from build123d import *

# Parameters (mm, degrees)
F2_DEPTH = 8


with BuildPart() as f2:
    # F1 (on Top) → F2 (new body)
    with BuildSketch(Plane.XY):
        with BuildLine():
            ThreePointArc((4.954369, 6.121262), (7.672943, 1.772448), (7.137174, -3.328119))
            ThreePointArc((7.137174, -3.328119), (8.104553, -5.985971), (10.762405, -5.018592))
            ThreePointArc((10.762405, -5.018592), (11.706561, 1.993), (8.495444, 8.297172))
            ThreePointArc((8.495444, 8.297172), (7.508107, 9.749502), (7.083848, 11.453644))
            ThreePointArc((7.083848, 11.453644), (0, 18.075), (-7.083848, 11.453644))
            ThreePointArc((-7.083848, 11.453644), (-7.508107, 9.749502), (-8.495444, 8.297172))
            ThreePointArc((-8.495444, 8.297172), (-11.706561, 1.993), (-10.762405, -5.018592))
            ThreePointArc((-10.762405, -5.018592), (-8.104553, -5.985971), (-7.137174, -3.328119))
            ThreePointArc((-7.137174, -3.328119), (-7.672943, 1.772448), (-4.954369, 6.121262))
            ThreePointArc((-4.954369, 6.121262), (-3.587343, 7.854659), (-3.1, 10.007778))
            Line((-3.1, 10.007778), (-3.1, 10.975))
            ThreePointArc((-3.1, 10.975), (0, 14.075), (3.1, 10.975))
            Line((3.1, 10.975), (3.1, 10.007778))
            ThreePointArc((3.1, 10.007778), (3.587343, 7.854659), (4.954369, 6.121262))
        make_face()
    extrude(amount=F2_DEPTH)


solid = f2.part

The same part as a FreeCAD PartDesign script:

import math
import FreeCAD as App
import Part
import Sketcher
from FreeCAD import Vector
Q = App.Units.Quantity

doc = App.newDocument("Part")
params = doc.addObject("Spreadsheet::Sheet", "Params")
for row, (alias, value) in enumerate([
    ("sketch1_radius", "2 mm"),
    ("sketch1_radius2", "4.999999 mm"),
    ("sketch1_radius3", "7.1 mm"),
    ("sketch1_radius4", "3.1 mm"),
    ("pad1_length", "8 mm"),
], start=1):
    params.set(f"A{row}", alias)
    params.set(f"B{row}", "=" + value)
    params.setAlias(f"B{row}", alias)

body = doc.addObject("PartDesign::Body", "Body")

# Sketch on XY plane
sketch1 = body.newObject("Sketcher::SketchObject", "Sketch")
sketch1.AttachmentSupport = (doc.getObject("XY_Plane"), [""])
sketch1.MapMode = "FlatFace"
sketch1.addGeometry(Part.ArcOfCircle(Part.Circle(Vector(0, 0, 0), Vector(0, 0, 1), 7.9), math.radians(-25), math.radians(51)), False)
sketch1.addGeometry(Part.ArcOfCircle(Part.Circle(Vector(8.9, -4.2, 0), Vector(0, 0, 1), 2), math.radians(155), math.radians(335)), False)
sketch1.addGeometry(Part.ArcOfCircle(Part.Circle(Vector(0, 0, 0), Vector(0, 0, 1), 11.9), math.radians(-25), math.radians(44)), False)
sketch1.addGeometry(Part.ArcOfCircle(Part.Circle(Vector(12.1, 11.8, 0), Vector(0, 0, 1), 5), math.radians(-176), math.radians(-136)), False)
sketch1.addGeometry(Part.ArcOfCircle(Part.Circle(Vector(0, 11, 0), Vector(0, 0, 1), 7.1), math.radians(4), math.radians(176)), False)
sketch1.addGeometry(Part.ArcOfCircle(Part.Circle(Vector(-12.1, 11.8, 0), Vector(0, 0, 1), 5), math.radians(-44), math.radians(-4)), False)
sketch1.addGeometry(Part.ArcOfCircle(Part.Circle(Vector(0, 0, 0), Vector(0, 0, 1), 11.9), math.radians(136), math.radians(205)), False)
sketch1.addGeometry(Part.ArcOfCircle(Part.Circle(Vector(-8.9, -4.2, 0), Vector(0, 0, 1), 2), math.radians(-155), math.radians(25)), False)
sketch1.addGeometry(Part.ArcOfCircle(Part.Circle(Vector(0, 0, 0), Vector(0, 0, 1), 7.9), math.radians(129), math.radians(205)), False)
sketch1.addGeometry(Part.ArcOfCircle(Part.Circle(Vector(-8.1, 10, 0), Vector(0, 0, 1), 5), math.radians(-51), math.radians(0)), False)
sketch1.addGeometry(Part.LineSegment(Vector(-3.1, 10, 0), Vector(-3.1, 11, 0)), False)
sketch1.addGeometry(Part.ArcOfCircle(Part.Circle(Vector(0, 11, 0), Vector(0, 0, 1), 3.1), math.radians(0), math.radians(180)), False)
sketch1.addGeometry(Part.LineSegment(Vector(3.1, 11, 0), Vector(3.1, 10, 0)), False)
sketch1.addGeometry(Part.ArcOfCircle(Part.Circle(Vector(8.1, 10, 0), Vector(0, 0, 1), 5), math.radians(-180), math.radians(-129)), False)
sketch1.addConstraint(Sketcher.Constraint("Tangent", 0, 1, 1, 1))
sketch1.addConstraint(Sketcher.Constraint("Tangent", 1, 2, 2, 1))
sketch1.addConstraint(Sketcher.Constraint("Tangent", 2, 2, 3, 2))
sketch1.addConstraint(Sketcher.Constraint("Tangent", 3, 1, 4, 1))
sketch1.addConstraint(Sketcher.Constraint("Tangent", 4, 2, 5, 2))
sketch1.addConstraint(Sketcher.Constraint("Tangent", 5, 1, 6, 1))
sketch1.addConstraint(Sketcher.Constraint("Tangent", 6, 2, 7, 1))
sketch1.addConstraint(Sketcher.Constraint("Tangent", 7, 2, 8, 2))
sketch1.addConstraint(Sketcher.Constraint("Tangent", 8, 1, 9, 1))
sketch1.addConstraint(Sketcher.Constraint("Tangent", 9, 2, 10, 1))
sketch1.addConstraint(Sketcher.Constraint("Tangent", 10, 2, 11, 2))
sketch1.addConstraint(Sketcher.Constraint("Tangent", 11, 1, 12, 1))
sketch1.addConstraint(Sketcher.Constraint("Tangent", 12, 2, 13, 1))
sketch1.addConstraint(Sketcher.Constraint("Tangent", 13, 2, 0, 2))
sketch1.addConstraint(Sketcher.Constraint("Vertical", 10))
sketch1.addConstraint(Sketcher.Constraint("Vertical", 12))
sketch1.addConstraint(Sketcher.Constraint("Coincident", 0, 3, -1, 1))
sketch1.addConstraint(Sketcher.Constraint("Coincident", 2, 3, -1, 1))
sketch1.addConstraint(Sketcher.Constraint("Coincident", 6, 3, -1, 1))
sketch1.addConstraint(Sketcher.Constraint("Coincident", 8, 3, -1, 1))
sketch1.addConstraint(Sketcher.Constraint("Coincident", 11, 3, 4, 3))
sketch1.addConstraint(Sketcher.Constraint("Equal", 3, 5))
sketch1.addConstraint(Sketcher.Constraint("Equal", 2, 6))
sketch1.addConstraint(Sketcher.Constraint("Equal", 1, 7))
sketch1.addConstraint(Sketcher.Constraint("Equal", 9, 13))
sketch1.addConstraint(Sketcher.Constraint("PointOnObject", 4, 3, -2))
sketch1.addConstraint(Sketcher.Constraint("Horizontal", 1, 3, 7, 3))
sketch1.addConstraint(Sketcher.Constraint("Radius", 1, Q("2 mm")))
sketch1.addConstraint(Sketcher.Constraint("Radius", 3, Q("4.999999 mm")))
sketch1.addConstraint(Sketcher.Constraint("Radius", 4, Q("7.1 mm")))
sketch1.addConstraint(Sketcher.Constraint("Radius", 11, Q("3.1 mm")))
sketch1.addConstraint(Sketcher.Constraint("Radius", 0, Q("7.875 mm")))
sketch1.addConstraint(Sketcher.Constraint("DistanceY", -1, 1, 4, 3, Q("10.975 mm")))
sketch1.addConstraint(Sketcher.Constraint("Radius", 9, Q("5.000005 mm")))
sketch1.addConstraint(Sketcher.Constraint("DistanceX", -1, 1, 1, 3, Q("8.949789 mm")))
sketch1.setExpression("Constraints[27]", "Params.sketch1_radius")
sketch1.setExpression("Constraints[28]", "Params.sketch1_radius2")
sketch1.setExpression("Constraints[29]", "Params.sketch1_radius3")
sketch1.setExpression("Constraints[30]", "Params.sketch1_radius4")
pad1 = body.newObject("PartDesign::Pad", "Pad")
pad1.Profile = sketch1
pad1.setExpression("Length", "Params.pad1_length")

doc.recompute()
